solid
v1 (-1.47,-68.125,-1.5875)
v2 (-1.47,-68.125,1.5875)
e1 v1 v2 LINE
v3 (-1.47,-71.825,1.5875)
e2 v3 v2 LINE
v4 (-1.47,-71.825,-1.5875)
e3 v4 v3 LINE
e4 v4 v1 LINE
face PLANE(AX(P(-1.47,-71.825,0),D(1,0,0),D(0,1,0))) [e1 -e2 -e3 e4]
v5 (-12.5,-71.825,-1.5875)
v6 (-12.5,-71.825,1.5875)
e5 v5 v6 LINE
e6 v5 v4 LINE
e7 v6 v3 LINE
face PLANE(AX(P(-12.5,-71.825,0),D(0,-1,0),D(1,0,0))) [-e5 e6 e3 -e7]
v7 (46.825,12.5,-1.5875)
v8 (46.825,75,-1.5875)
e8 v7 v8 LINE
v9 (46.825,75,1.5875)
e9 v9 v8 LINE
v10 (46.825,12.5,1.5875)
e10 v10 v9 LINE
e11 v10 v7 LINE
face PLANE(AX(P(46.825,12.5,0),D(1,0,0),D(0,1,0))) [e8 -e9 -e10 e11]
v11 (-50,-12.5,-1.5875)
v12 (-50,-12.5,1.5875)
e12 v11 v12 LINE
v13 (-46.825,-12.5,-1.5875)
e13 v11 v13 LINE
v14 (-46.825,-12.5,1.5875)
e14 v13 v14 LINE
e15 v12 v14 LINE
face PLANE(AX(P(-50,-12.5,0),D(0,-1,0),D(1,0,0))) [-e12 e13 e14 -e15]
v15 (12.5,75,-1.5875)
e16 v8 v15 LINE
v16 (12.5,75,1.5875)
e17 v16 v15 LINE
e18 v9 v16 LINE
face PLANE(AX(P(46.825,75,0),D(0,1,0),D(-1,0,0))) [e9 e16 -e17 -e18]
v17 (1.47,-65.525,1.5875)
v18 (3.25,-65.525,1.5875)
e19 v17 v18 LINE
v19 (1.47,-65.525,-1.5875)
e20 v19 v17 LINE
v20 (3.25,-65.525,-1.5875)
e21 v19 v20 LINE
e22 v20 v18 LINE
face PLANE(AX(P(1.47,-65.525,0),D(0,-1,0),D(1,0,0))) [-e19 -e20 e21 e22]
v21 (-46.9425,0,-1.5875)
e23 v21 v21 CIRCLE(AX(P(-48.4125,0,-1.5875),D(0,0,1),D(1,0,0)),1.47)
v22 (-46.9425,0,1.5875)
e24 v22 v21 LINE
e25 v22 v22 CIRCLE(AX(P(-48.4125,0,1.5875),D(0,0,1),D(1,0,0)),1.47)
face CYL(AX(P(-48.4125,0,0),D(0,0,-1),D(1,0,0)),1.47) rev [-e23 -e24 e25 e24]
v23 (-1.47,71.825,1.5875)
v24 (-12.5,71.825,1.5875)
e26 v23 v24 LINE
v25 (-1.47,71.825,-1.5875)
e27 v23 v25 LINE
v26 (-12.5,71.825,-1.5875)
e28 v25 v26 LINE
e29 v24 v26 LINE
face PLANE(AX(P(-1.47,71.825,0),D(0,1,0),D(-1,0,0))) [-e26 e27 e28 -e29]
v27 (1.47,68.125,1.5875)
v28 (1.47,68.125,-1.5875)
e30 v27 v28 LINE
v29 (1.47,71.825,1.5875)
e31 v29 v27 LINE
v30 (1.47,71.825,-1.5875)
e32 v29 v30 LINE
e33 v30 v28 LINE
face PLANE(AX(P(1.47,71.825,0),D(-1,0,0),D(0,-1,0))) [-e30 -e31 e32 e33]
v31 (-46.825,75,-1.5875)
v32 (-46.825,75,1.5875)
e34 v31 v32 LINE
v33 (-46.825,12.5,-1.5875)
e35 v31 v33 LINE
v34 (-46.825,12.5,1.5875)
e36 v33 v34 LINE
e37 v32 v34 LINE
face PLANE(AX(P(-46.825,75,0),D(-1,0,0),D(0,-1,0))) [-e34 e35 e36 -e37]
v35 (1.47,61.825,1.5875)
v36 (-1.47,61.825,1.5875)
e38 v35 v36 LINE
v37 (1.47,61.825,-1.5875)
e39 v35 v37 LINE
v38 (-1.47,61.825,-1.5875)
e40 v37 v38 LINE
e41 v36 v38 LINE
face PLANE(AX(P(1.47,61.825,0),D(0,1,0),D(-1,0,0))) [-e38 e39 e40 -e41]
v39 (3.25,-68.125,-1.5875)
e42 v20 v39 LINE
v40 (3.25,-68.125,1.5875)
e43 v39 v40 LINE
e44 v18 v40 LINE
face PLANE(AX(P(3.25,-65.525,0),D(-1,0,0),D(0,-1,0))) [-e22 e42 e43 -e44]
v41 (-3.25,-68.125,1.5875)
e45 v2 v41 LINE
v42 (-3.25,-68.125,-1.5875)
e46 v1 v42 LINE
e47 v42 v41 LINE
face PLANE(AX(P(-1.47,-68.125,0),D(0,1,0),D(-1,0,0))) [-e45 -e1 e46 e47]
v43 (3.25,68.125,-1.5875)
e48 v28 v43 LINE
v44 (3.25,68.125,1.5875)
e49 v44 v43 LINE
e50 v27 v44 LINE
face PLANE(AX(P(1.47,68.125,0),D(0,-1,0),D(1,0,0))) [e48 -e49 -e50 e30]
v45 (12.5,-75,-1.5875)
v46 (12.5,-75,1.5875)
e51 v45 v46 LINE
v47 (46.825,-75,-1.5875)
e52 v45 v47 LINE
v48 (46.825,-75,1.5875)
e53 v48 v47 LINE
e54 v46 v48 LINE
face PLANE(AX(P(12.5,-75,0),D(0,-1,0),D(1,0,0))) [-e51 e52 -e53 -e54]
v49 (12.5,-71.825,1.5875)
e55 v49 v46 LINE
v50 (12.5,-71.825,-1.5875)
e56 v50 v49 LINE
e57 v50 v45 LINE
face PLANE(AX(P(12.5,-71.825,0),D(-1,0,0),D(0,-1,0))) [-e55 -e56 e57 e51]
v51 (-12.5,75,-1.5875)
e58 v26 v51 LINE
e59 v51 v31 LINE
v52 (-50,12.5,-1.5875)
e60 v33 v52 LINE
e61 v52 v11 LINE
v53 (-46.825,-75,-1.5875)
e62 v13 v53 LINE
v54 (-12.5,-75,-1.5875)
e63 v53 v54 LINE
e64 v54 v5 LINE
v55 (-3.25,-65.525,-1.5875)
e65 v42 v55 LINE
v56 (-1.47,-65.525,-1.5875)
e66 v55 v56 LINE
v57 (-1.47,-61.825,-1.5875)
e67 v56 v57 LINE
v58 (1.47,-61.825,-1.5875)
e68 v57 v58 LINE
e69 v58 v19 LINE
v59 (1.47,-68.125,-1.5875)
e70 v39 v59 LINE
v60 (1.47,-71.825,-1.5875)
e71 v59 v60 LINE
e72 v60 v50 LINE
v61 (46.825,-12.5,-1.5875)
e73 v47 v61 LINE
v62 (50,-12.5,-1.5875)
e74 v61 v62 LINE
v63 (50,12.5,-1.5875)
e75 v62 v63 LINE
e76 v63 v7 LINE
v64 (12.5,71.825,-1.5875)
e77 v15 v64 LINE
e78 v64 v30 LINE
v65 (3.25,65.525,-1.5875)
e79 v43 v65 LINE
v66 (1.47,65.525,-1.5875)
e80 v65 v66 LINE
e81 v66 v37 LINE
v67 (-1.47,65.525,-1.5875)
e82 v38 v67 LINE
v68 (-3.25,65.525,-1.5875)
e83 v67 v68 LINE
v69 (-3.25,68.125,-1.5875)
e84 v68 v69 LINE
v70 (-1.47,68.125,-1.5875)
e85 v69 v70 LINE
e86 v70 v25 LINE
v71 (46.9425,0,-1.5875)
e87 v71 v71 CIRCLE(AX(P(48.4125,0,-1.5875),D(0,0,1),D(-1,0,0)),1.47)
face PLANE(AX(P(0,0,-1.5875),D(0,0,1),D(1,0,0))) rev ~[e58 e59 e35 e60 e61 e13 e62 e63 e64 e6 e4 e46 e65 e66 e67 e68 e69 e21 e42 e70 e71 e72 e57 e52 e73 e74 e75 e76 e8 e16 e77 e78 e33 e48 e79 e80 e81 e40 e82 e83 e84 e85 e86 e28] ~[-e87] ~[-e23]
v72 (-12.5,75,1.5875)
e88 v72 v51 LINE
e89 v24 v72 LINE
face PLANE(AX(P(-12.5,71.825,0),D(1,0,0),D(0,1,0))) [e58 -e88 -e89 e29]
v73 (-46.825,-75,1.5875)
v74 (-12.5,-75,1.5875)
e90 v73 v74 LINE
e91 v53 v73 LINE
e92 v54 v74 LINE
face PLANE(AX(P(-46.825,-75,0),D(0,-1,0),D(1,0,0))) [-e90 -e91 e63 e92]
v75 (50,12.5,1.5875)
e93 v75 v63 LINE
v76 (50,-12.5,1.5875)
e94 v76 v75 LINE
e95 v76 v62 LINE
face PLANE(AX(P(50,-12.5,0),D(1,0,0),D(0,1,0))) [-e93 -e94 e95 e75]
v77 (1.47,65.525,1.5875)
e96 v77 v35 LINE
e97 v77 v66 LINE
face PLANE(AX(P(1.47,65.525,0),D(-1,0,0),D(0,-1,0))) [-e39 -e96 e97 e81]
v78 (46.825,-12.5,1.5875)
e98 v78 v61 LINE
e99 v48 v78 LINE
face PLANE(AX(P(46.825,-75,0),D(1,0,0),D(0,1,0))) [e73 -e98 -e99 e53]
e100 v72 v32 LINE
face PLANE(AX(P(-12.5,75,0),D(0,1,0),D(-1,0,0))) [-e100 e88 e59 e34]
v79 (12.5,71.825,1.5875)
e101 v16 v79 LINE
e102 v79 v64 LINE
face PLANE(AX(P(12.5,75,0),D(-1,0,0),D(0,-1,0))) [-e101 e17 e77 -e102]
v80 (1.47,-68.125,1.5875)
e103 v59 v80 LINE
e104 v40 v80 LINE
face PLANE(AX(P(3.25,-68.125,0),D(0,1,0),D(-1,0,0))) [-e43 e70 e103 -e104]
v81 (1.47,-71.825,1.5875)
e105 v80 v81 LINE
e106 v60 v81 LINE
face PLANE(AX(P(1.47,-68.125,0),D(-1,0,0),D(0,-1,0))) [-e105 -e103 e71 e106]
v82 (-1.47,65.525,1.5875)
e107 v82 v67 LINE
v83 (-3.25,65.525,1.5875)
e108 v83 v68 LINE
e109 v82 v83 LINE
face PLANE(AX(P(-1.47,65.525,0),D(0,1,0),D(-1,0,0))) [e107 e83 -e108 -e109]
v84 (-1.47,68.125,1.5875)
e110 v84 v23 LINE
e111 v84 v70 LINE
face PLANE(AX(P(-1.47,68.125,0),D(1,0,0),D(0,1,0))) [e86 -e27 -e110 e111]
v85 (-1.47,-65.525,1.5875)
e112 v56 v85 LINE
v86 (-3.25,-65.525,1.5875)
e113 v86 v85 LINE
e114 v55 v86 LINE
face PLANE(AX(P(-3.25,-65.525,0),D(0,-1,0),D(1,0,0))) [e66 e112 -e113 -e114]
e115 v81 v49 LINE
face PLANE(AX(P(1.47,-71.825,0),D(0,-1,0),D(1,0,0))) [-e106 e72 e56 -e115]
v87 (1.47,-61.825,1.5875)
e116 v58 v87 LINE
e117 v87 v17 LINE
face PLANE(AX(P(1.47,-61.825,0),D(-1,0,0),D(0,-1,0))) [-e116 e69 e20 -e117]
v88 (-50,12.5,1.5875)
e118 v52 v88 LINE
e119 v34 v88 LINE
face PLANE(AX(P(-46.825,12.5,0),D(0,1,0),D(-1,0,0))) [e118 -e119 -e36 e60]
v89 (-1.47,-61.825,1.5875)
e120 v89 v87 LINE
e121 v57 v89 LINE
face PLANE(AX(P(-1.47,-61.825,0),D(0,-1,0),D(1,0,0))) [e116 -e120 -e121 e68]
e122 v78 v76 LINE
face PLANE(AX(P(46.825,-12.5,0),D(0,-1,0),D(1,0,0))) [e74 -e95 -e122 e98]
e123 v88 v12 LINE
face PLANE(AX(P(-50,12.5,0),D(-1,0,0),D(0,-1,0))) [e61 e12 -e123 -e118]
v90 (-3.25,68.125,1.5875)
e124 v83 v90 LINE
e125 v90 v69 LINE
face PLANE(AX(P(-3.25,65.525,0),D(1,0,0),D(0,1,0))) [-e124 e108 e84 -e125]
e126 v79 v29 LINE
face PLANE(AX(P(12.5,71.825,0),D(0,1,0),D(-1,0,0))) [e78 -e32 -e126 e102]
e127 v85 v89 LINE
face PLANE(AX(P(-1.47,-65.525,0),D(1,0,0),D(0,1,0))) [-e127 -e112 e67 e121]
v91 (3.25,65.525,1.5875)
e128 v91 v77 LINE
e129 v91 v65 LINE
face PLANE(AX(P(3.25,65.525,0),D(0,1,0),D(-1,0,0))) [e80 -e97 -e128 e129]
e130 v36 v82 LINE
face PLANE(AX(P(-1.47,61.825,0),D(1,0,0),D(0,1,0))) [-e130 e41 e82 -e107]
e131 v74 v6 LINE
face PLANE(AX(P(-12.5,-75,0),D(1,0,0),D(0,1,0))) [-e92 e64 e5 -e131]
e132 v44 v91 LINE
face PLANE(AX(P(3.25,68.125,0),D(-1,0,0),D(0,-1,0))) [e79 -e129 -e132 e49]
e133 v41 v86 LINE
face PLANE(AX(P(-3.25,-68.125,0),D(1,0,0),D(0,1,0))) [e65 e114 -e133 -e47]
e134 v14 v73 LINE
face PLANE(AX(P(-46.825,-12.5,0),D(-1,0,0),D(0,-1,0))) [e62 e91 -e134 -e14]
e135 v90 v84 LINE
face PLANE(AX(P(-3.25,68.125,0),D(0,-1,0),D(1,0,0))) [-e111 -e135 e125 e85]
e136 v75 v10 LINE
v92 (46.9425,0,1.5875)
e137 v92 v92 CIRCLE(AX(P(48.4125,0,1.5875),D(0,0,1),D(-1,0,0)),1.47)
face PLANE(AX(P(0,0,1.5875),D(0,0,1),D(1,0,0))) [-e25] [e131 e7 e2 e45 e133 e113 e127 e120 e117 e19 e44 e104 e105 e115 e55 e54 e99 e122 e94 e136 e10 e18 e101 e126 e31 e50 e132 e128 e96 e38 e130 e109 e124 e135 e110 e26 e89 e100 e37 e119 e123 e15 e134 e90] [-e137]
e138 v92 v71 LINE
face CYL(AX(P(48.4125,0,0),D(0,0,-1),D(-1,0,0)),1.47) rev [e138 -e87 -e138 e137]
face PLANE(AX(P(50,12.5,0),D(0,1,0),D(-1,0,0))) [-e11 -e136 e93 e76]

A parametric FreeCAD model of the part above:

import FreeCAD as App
import Part
import Sketcher
Q = App.Units.Quantity


def add_polygon(sketch, points):
    """Adds a closed chain of lines whose ends are joined by coincident constraints."""
    first, n = sketch.GeometryCount, len(points)
    for a, b in zip(points, points[1:] + points[:1]):
        sketch.addGeometry(Part.LineSegment(App.Vector(*a, 0), App.Vector(*b, 0)), False)
    for i in range(n):
        sketch.addConstraint(Sketcher.Constraint("Coincident", first + i, 2, first + (i + 1) % n, 1))

doc = App.newDocument("Part")
body = doc.addObject("PartDesign::Body", "Body")

sketch1 = body.newObject("Sketcher::SketchObject", "Sketch")
sketch1.AttachmentSupport = (doc.getObject("XY_Plane"), [""])
sketch1.MapMode = "FlatFace"
add_polygon(sketch1, [(-12.5, 75), (-46.825, 75), (-46.825, 12.5), (-50, 12.5), (-50, -12.5), (-46.825, -12.5), (-46.825, -75), (-12.5, -75), (-12.5, -71.825), (-1.47, -71.825), (-1.47, -68.125), (-3.25, -68.125), (-3.25, -65.525), (-1.47, -65.525), (-1.47, -61.825), (1.47, -61.825), (1.47, -65.525), (3.25, -65.525), (3.25, -68.125), (1.47, -68.125), (1.47, -71.825), (12.5, -71.825), (12.5, -75), (46.825, -75), (46.825, -12.5), (50, -12.5), (50, 12.5), (46.825, 12.5), (46.825, 75), (12.5, 75), (12.5, 71.825), (1.47, 71.825), (1.47, 68.125), (3.25, 68.125), (3.25, 65.525), (1.47, 65.525), (1.47, 61.825), (-1.47, 61.825), (-1.47, 65.525), (-3.25, 65.525), (-3.25, 68.125), (-1.47, 68.125), (-1.47, 71.825), (-12.5, 71.825)])
sketch1.addGeometry(Part.Circle(App.Vector(-48.4125, 0, 0), App.Vector(0, 0, 1), 1.47), False)
sketch1.addGeometry(Part.Circle(App.Vector(48.4125, 0, 0), App.Vector(0, 0, 1), 1.47), False)
sketch1.addConstraint(Sketcher.Constraint("Horizontal", 0))
sketch1.addConstraint(Sketcher.Constraint("Vertical", 1))
sketch1.addConstraint(Sketcher.Constraint("Horizontal", 2))
sketch1.addConstraint(Sketcher.Constraint("Vertical", 3))
sketch1.addConstraint(Sketcher.Constraint("Horizontal", 4))
sketch1.addConstraint(Sketcher.Constraint("Vertical", 5))
sketch1.addConstraint(Sketcher.Constraint("Horizontal", 6))
sketch1.addConstraint(Sketcher.Constraint("Vertical", 7))
sketch1.addConstraint(Sketcher.Constraint("Horizontal", 8))
sketch1.addConstraint(Sketcher.Constraint("Vertical", 9))
sketch1.addConstraint(Sketcher.Constraint("Horizontal", 10))
sketch1.addConstraint(Sketcher.Constraint("Vertical", 11))
sketch1.addConstraint(Sketcher.Constraint("Horizontal", 12))
sketch1.addConstraint(Sketcher.Constraint("Vertical", 13))
sketch1.addConstraint(Sketcher.Constraint("Horizontal", 14))
sketch1.addConstraint(Sketcher.Constraint("Vertical", 15))
sketch1.addConstraint(Sketcher.Constraint("Horizontal", 16))
sketch1.addConstraint(Sketcher.Constraint("Vertical", 17))
sketch1.addConstraint(Sketcher.Constraint("Horizontal", 18))
sketch1.addConstraint(Sketcher.Constraint("Vertical", 19))
sketch1.addConstraint(Sketcher.Constraint("Horizontal", 20))
sketch1.addConstraint(Sketcher.Constraint("Vertical", 21))
sketch1.addConstraint(Sketcher.Constraint("Horizontal", 22))
sketch1.addConstraint(Sketcher.Constraint("Vertical", 23))
sketch1.addConstraint(Sketcher.Constraint("Horizontal", 24))
sketch1.addConstraint(Sketcher.Constraint("Vertical", 25))
sketch1.addConstraint(Sketcher.Constraint("Horizontal", 26))
sketch1.addConstraint(Sketcher.Constraint("Vertical", 27))
sketch1.addConstraint(Sketcher.Constraint("Horizontal", 28))
sketch1.addConstraint(Sketcher.Constraint("Vertical", 29))
sketch1.addConstraint(Sketcher.Constraint("Horizontal", 30))
sketch1.addConstraint(Sketcher.Constraint("Vertical", 31))
sketch1.addConstraint(Sketcher.Constraint("Horizontal", 32))
sketch1.addConstraint(Sketcher.Constraint("Vertical", 33))
sketch1.addConstraint(Sketcher.Constraint("Horizontal", 34))
sketch1.addConstraint(Sketcher.Constraint("Vertical", 35))
sketch1.addConstraint(Sketcher.Constraint("Horizontal", 36))
sketch1.addConstraint(Sketcher.Constraint("Vertical", 37))
sketch1.addConstraint(Sketcher.Constraint("Horizontal", 38))
sketch1.addConstraint(Sketcher.Constraint("Vertical", 39))
sketch1.addConstraint(Sketcher.Constraint("Horizontal", 40))
sketch1.addConstraint(Sketcher.Constraint("Vertical", 41))
sketch1.addConstraint(Sketcher.Constraint("Horizontal", 42))
sketch1.addConstraint(Sketcher.Constraint("Vertical", 43))
sketch1.addConstraint(Sketcher.Constraint("Equal", 44, 45))
sketch1.addConstraint(Sketcher.Constraint("Symmetric", 44, 3, 45, 3, -1, 1))
sketch1.addConstraint(Sketcher.Constraint("Symmetric", 0, 2, 22, 2, -1, 1))
sketch1.addConstraint(Sketcher.Constraint("Symmetric", 2, 2, 24, 2, -1, 1))
sketch1.addConstraint(Sketcher.Constraint("Symmetric", 4, 2, 26, 2, -1, 1))
sketch1.addConstraint(Sketcher.Constraint("Symmetric", 6, 2, 28, 2, -1, 1))
sketch1.addConstraint(Sketcher.Constraint("Symmetric", 8, 2, 30, 2, -1, 1))
sketch1.addConstraint(Sketcher.Constraint("Symmetric", 10, 2, 32, 2, -1, 1))
sketch1.addConstraint(Sketcher.Constraint("Symmetric", 12, 2, 34, 2, -1, 1))
sketch1.addConstraint(Sketcher.Constraint("Symmetric", 14, 2, 36, 2, -1, 1))
sketch1.addConstraint(Sketcher.Constraint("Symmetric", 16, 2, 38, 2, -1, 1))
sketch1.addConstraint(Sketcher.Constraint("Symmetric", 18, 2, 40, 2, -1, 1))
sketch1.addConstraint(Sketcher.Constraint("Symmetric", 20, 2, 42, 2, -1, 1))
sketch1.addConstraint(Sketcher.Constraint("Symmetric", 12, 2, 15, 2, -2))
sketch1.addConstraint(Sketcher.Constraint("Symmetric", 10, 2, 17, 2, -2))
sketch1.addConstraint(Sketcher.Constraint("Symmetric", 8, 2, 19, 2, -2))
sketch1.addConstraint(Sketcher.Constraint("Symmetric", 6, 2, 21, 2, -2))
sketch1.addConstraint(Sketcher.Constraint("Symmetric", 4, 2, 23, 2, -2))
sketch1.addConstraint(Sketcher.Constraint("PointOnObject", 44, 3, -1))
sketch1.addConstraint(Sketcher.Constraint("Vertical", 9, 2, 12, 2))
sketch1.addConstraint(Sketcher.Constraint("Equal", 26, 7))
sketch1.addConstraint(Sketcher.Constraint("Equal", 9, 13))
sketch1.addConstraint(Sketcher.Constraint("Diameter", 44, Q("2.94 mm")))
sketch1.addConstraint(Sketcher.Constraint("DistanceY", 3, 2, 3, 1, Q("25 mm")))
sketch1.addConstraint(Sketcher.Constraint("DistanceY", 1, 2, 1, 1, Q("62.5 mm")))
sketch1.addConstraint(Sketcher.Constraint("DistanceY", 9, 1, 9, 2, Q("3.7 mm")))
sketch1.addConstraint(Sketcher.Constraint("DistanceY", 11, 1, 11, 2, Q("2.6 mm")))
sketch1.addConstraint(Sketcher.Constraint("DistanceX", 2, 2, -1, 1, Q("50 mm")))
sketch1.addConstraint(Sketcher.Constraint("DistanceX", 8, 1, 8, 2, Q("11.03 mm")))
sketch1.addConstraint(Sketcher.Constraint("DistanceX", 10, 2, 10, 1, Q("1.78 mm")))
sketch1.addConstraint(Sketcher.Constraint("DistanceX", 14, 1, 14, 2, Q("2.94 mm")))
sketch1.addConstraint(Sketcher.Constraint("DistanceX", 0, 2, 0, 1, Q("34.325 mm")))
sketch1.addConstraint(Sketcher.Constraint("DistanceX", 44, 3, 45, 3, Q("96.825 mm")))
pad1 = body.newObject("PartDesign::Pad", "Pad")
pad1.Profile = sketch1
pad1.Length = 3.175
pad1.Midplane = True

doc.recompute()
